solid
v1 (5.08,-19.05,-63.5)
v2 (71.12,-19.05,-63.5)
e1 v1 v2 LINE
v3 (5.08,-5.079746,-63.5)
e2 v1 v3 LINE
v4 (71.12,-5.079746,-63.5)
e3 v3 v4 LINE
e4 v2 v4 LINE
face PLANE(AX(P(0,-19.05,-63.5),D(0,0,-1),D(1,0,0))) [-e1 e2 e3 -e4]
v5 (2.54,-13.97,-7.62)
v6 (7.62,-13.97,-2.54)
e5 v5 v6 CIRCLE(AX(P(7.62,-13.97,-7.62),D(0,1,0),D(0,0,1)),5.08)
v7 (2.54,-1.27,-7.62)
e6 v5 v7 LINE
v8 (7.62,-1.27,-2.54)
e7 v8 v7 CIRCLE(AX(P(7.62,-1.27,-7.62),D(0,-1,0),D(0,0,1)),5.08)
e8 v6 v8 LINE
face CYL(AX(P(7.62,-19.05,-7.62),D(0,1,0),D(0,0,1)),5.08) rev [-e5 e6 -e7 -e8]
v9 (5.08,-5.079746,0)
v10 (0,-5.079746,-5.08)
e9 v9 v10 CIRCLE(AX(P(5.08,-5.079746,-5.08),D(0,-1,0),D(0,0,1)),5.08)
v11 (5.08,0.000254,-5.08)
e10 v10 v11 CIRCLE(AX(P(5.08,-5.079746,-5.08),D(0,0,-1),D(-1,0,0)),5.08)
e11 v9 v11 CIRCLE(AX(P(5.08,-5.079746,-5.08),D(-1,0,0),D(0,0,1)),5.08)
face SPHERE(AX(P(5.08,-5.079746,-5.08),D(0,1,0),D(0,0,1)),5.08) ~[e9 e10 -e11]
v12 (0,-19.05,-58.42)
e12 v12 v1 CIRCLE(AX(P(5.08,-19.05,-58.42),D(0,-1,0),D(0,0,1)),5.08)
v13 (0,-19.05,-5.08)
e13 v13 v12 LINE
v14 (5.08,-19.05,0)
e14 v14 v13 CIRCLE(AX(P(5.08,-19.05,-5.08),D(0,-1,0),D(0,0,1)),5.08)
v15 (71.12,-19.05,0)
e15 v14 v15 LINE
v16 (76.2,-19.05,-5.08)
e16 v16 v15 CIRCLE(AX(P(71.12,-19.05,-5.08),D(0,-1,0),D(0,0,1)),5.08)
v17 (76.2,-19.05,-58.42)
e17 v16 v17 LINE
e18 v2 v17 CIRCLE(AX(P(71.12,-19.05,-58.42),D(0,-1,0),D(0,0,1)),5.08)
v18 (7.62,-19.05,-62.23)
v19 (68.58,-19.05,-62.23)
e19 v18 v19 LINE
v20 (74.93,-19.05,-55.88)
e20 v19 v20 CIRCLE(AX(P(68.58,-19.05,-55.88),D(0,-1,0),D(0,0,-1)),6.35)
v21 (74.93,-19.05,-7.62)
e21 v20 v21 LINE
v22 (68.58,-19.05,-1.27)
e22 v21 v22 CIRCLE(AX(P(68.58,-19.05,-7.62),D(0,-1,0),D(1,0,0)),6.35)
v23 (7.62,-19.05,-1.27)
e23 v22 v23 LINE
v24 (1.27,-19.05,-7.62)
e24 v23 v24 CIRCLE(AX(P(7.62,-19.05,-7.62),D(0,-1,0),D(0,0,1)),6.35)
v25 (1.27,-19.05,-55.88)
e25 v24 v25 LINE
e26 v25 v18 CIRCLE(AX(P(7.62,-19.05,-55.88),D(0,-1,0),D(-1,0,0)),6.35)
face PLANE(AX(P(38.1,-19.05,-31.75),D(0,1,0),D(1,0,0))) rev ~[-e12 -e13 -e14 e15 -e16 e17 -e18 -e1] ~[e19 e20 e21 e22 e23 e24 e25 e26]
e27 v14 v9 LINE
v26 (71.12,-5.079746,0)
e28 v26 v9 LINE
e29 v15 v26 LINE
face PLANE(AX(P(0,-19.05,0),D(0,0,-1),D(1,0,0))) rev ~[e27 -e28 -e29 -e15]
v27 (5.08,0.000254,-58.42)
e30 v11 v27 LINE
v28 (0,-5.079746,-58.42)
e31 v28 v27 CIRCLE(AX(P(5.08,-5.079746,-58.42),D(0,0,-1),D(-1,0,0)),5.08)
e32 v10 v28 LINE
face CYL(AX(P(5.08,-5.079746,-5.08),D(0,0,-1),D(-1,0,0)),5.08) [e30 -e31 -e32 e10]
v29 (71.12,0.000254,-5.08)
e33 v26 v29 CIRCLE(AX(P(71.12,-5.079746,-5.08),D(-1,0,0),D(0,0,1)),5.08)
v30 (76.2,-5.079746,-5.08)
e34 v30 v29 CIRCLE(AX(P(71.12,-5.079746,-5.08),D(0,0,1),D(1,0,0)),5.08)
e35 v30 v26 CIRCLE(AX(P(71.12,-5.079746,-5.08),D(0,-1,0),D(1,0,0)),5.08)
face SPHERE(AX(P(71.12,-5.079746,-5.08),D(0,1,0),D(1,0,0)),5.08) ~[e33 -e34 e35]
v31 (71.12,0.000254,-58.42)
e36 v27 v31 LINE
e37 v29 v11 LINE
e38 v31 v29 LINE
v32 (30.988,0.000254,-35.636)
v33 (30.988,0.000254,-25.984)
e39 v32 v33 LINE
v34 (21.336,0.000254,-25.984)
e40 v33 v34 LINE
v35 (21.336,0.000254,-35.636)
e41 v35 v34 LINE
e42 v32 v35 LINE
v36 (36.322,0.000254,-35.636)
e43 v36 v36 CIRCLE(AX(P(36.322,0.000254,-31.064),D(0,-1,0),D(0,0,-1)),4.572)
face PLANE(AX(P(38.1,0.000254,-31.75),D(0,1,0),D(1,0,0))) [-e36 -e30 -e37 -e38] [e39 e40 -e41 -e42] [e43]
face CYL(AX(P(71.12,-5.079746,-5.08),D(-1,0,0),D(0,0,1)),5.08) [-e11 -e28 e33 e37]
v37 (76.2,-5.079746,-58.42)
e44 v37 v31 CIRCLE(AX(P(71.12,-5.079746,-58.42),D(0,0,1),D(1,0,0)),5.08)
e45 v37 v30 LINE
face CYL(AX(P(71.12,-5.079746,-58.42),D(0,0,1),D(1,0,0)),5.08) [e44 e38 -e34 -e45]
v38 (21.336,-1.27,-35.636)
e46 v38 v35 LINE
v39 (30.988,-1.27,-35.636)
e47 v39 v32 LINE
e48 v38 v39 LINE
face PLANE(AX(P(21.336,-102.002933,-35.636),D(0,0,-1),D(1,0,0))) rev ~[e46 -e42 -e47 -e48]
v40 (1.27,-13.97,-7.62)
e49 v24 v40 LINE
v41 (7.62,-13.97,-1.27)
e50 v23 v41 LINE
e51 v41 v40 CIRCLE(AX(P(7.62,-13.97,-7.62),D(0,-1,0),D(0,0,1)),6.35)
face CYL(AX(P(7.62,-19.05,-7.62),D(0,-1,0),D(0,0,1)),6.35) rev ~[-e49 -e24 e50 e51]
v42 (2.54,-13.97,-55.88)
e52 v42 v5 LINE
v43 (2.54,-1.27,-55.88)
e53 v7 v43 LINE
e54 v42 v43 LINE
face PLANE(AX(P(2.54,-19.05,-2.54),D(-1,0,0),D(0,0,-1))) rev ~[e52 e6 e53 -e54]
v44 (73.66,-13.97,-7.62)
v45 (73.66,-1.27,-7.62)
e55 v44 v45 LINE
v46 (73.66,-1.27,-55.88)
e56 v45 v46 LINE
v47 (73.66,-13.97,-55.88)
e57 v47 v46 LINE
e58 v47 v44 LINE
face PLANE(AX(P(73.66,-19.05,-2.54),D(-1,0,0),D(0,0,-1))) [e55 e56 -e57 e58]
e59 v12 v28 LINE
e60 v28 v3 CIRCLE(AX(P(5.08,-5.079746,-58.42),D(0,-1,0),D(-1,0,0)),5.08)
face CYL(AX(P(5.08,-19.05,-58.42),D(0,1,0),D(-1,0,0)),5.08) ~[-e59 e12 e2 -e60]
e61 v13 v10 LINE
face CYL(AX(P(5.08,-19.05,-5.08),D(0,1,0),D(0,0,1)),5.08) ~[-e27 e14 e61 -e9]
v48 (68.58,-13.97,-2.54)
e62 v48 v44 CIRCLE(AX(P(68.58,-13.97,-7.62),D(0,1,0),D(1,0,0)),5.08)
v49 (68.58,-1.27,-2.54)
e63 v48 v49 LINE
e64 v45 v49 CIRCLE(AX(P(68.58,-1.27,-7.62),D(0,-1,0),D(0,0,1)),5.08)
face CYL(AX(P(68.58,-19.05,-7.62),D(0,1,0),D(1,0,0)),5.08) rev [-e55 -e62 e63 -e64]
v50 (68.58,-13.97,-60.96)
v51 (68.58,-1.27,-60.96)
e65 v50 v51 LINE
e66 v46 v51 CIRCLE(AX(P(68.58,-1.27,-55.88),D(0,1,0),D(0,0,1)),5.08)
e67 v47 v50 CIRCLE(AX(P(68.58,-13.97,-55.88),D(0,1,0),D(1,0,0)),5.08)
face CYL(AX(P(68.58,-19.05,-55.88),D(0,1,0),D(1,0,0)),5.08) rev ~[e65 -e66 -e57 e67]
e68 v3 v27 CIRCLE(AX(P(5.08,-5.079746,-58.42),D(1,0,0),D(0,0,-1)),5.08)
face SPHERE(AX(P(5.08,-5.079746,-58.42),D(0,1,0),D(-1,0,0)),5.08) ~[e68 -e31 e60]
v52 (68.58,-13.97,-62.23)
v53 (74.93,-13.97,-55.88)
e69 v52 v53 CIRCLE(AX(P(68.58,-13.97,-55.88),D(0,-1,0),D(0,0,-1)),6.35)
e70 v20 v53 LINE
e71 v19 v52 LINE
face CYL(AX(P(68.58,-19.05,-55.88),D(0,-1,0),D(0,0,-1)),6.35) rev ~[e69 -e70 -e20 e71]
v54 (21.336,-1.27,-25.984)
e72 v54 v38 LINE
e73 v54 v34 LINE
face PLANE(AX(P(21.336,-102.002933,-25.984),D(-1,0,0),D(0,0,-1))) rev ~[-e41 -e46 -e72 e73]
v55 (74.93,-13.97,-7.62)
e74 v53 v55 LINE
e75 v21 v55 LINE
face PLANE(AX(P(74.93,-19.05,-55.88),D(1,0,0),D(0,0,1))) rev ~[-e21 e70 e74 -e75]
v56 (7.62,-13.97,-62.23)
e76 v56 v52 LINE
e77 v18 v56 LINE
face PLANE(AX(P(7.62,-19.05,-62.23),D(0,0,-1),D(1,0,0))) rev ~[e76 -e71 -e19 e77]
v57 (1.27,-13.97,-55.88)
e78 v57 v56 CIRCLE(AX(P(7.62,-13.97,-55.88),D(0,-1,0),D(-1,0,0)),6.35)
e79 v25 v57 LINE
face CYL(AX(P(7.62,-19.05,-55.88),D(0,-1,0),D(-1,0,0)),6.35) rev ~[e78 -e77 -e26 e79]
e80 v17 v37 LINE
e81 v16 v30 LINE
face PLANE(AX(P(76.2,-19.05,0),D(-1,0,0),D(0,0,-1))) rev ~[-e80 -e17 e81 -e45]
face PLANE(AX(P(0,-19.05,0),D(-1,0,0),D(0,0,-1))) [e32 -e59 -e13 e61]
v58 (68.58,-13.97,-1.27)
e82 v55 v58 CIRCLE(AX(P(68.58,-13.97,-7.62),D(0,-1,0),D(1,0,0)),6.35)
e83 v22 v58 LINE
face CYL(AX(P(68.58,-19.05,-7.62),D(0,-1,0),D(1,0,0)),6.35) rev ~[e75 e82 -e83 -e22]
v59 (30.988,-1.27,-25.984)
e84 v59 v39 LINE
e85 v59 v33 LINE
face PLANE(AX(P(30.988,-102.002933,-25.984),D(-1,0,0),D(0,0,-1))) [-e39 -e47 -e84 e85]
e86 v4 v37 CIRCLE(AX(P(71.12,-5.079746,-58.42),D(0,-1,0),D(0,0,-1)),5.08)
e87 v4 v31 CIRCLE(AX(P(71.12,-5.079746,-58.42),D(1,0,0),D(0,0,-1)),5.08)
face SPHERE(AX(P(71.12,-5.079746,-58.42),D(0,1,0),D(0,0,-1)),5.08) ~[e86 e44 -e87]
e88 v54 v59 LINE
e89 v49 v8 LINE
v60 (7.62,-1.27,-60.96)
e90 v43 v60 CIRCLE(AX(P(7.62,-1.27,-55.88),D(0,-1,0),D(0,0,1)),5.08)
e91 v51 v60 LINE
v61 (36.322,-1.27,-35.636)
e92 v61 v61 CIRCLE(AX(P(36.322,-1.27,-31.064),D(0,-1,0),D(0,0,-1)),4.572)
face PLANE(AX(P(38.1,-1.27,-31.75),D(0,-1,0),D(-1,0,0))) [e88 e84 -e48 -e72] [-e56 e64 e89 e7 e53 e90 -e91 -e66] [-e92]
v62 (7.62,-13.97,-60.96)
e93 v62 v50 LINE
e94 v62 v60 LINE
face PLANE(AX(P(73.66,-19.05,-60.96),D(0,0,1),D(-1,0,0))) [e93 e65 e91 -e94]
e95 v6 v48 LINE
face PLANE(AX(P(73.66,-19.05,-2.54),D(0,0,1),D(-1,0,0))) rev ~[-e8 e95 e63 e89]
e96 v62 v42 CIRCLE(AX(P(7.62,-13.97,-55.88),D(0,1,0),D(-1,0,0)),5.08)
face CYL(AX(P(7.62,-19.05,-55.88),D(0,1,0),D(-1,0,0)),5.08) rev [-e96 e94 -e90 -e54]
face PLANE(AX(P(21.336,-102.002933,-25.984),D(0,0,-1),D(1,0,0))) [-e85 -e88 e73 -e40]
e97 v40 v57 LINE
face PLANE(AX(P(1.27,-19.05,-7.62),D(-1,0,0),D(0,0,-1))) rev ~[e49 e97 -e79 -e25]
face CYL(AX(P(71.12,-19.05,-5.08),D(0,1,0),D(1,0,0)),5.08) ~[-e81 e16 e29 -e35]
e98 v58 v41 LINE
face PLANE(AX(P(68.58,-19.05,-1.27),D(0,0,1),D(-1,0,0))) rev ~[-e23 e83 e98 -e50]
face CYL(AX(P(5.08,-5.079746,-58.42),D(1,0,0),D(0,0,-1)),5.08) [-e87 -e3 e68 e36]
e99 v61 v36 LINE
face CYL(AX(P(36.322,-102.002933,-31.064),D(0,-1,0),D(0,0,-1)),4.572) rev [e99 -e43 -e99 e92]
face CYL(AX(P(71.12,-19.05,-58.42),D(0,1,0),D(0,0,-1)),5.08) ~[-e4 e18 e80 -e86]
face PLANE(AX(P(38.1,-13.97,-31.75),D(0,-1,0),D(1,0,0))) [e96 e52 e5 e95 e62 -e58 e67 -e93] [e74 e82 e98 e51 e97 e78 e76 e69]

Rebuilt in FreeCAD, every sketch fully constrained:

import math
import FreeCAD as App
import Part
import Sketcher

V = App.Vector
Q = App.Units.Quantity


def edges_at(feature, points):
    """Names of the edges that pass closest to the given points."""
    edges = feature.Shape.Edges
    near = lambda p: min(range(len(edges)), key=lambda i: edges[i].distToShape(Part.Vertex(*p))[0])
    return sorted({f"Edge{near(p) + 1}" for p in points})

doc = App.newDocument("Part")
body = doc.addObject("PartDesign::Body", "Body")

# Sketch on XZ plane
sketch1 = body.newObject("Sketcher::SketchObject", "Sketch")
sketch1.AttachmentSupport = (doc.getObject("XZ_Plane"), [""])
sketch1.MapMode = "FlatFace"
sketch1.addGeometry([
    Part.LineSegment(V(0, -64, 0), V(0, 0, 0)),
    Part.LineSegment(V(0, 0, 0), V(76, 0, 0)),
    Part.LineSegment(V(76, 0, 0), V(76, -64, 0)),
    Part.LineSegment(V(76, -64, 0), V(0, -64, 0)),
], False)
sketch1.addConstraint([
    Sketcher.Constraint("Coincident", 0, 2, 1, 1),
    Sketcher.Constraint("Coincident", 1, 2, 2, 1),
    Sketcher.Constraint("Coincident", 2, 2, 3, 1),
    Sketcher.Constraint("Coincident", 3, 2, 0, 1),
    Sketcher.Constraint("Vertical", 0),
    Sketcher.Constraint("Horizontal", 1),
    Sketcher.Constraint("Vertical", 2),
    Sketcher.Constraint("Horizontal", 3),
    Sketcher.Constraint("Coincident", 0, 2, -1, 1),
    Sketcher.Constraint("DistanceX", 1, 1, 1, 2, Q("3 in")),
    Sketcher.Constraint("DistanceY", 0, 1, 0, 2, Q("2.5 in")),
])
pad1 = body.newObject("PartDesign::Pad", "Pad")
pad1.Profile = sketch1
pad1.Type = "TwoLengths"
pad1.Length = 0.000254
pad1.Length2 = Q("0.75 in")
pad1.Reversed = True

# Sketch on XZ plane
sketch2 = body.newObject("Sketcher::SketchObject", "Sketch001")
sketch2.AttachmentSupport = (doc.getObject("XZ_Plane"), [""])
sketch2.MapMode = "FlatFace"
sketch2.AttachmentOffset = App.Placement(V(0, 0, 0.75 * 25.4), App.Rotation())
sketch2.addGeometry([
    Part.LineSegment(V(74, -61, 0), V(74, -3, 0)),
    Part.LineSegment(V(74, -3, 0), V(3, -3, 0)),
    Part.LineSegment(V(3, -3, 0), V(3, -61, 0)),
    Part.LineSegment(V(3, -61, 0), V(74, -61, 0)),
], False)
sketch2.addConstraint([
    Sketcher.Constraint("Coincident", 0, 2, 1, 1),
    Sketcher.Constraint("Coincident", 1, 2, 2, 1),
    Sketcher.Constraint("Coincident", 2, 2, 3, 1),
    Sketcher.Constraint("Coincident", 3, 2, 0, 1),
    Sketcher.Constraint("Vertical", 0),
    Sketcher.Constraint("Horizontal", 1),
    Sketcher.Constraint("Vertical", 2),
    Sketcher.Constraint("Horizontal", 3),
    Sketcher.Constraint("DistanceX", 1, 2, 1, 1, Q("2.8 in")),
    Sketcher.Constraint("DistanceY", 0, 1, 0, 2, Q("2.3 in")),
    Sketcher.Constraint("DistanceX", -1, 1, 0, 2, Q("2.9 in")),
    Sketcher.Constraint("DistanceY", 0, 2, -1, 1, Q("0.1 in")),
])
pocket1 = body.newObject("PartDesign::Pocket", "Pocket")
pocket1.Profile = sketch2
pocket1.Length = Q("0.7 in")

# Sketch on XZ plane
sketch3 = body.newObject("Sketcher::SketchObject", "Sketch002")
sketch3.AttachmentSupport = (doc.getObject("XZ_Plane"), [""])
sketch3.MapMode = "FlatFace"
sketch3.addGeometry([
    Part.Circle(V(36.3, -31.1, 0), V(0, 0, 1), 4.6),  # 0
    Part.LineSegment(V(21.3, -35.6, 0), V(21.3, -26, 0)),  # 1
    Part.LineSegment(V(21.3, -26, 0), V(31, -26, 0)),  # 2
    Part.LineSegment(V(31, -26, 0), V(31, -35.6, 0)),  # 3
    Part.LineSegment(V(31, -35.6, 0), V(21.3, -35.6, 0)),  # 4
], False)
sketch3.addConstraint([
    Sketcher.Constraint("Coincident", 1, 2, 2, 1),
    Sketcher.Constraint("Coincident", 2, 2, 3, 1),
    Sketcher.Constraint("Coincident", 3, 2, 4, 1),
    Sketcher.Constraint("Coincident", 4, 2, 1, 1),
    Sketcher.Constraint("Vertical", 1),
    Sketcher.Constraint("Horizontal", 2),
    Sketcher.Constraint("Vertical", 3),
    Sketcher.Constraint("Horizontal", 4),
    Sketcher.Constraint("Equal", 4, 1),
    Sketcher.Constraint("Diameter", 0, Q("0.36 in")),
    Sketcher.Constraint("DistanceX", 2, 1, 2, 2, Q("0.38 in")),
    Sketcher.Constraint("DistanceY", 0, 3, 1, 2, Q("0.2 in")),
    Sketcher.Constraint("DistanceX", -1, 1, 0, 3, Q("1.43 in")),
    Sketcher.Constraint("DistanceX", -1, 1, 1, 2, Q("0.84 in")),
    Sketcher.Constraint("DistanceY", 0, 3, -1, 1, Q("31.064 mm")),
])
pocket2 = body.newObject("PartDesign::Pocket", "Pocket001")
pocket2.Profile = sketch3
pocket2.Type = "ThroughAll"
pocket2.Midplane = True
doc.recompute()

fillet = body.newObject("PartDesign::Fillet", "Fillet")
fillet.Base = (pocket2, edges_at(pocket2, [(76.2, -9.525, -63.5)]))
fillet.Radius = Q("0.2 in")
doc.recompute()

fillet2 = body.newObject("PartDesign::Fillet", "Fillet001")
fillet2.Base = (fillet, edges_at(fillet, [(73.66, -10.16, -60.96)]))
fillet2.Radius = Q("0.2 in")
doc.recompute()

fillet3 = body.newObject("PartDesign::Fillet", "Fillet002")
fillet3.Base = (fillet2, edges_at(fillet2, [(73.66, -10.16, -2.54), (76.2, -9.525, 0)]))
fillet3.Radius = Q("0.2 in")
doc.recompute()

fillet4 = body.newObject("PartDesign::Fillet", "Fillet003")
fillet4.Base = (fillet3, edges_at(fillet3, [(2.54, -10.16, -2.54), (0, -9.525, 0)]))
fillet4.Radius = Q("0.2 in")
doc.recompute()

fillet5 = body.newObject("PartDesign::Fillet", "Fillet004")
fillet5.Base = (fillet4, edges_at(fillet4, [(2.54, -10.16, -60.96), (0, -9.525, -63.5)]))
fillet5.Radius = Q("0.2 in")
doc.recompute()

fillet6 = body.newObject("PartDesign::Fillet", "Fillet005")
fillet6.Base = (fillet5, edges_at(fillet5, [
    (38.1, 0, -63.5),
    (1.488, 0, -62.012),
    (74.712, 0, -62.012),
    (76.2, 0, -31.75),
    (74.712, 0, -1.488),
    (0, 0, -31.75),
    (38.1, 0, 0),
    (1.488, 0, -1.488),
]))
fillet6.Radius = Q("0.2 in")

# Sketch on XZ plane
sketch4 = body.newObject("Sketcher::SketchObject", "Sketch003")
sketch4.AttachmentSupport = (doc.getObject("XZ_Plane"), [""])
sketch4.MapMode = "FlatFace"
sketch4.AttachmentOffset = App.Placement(V(0, 0, 0.75 * 25.4), App.Rotation())
sketch4.addGeometry([
    Part.LineSegment(V(1, -8, 0), V(1, -56, 0)),  # 0
    Part.ArcOfCircle(Part.Circle(V(8, -56, 0), V(0, 0, 1), 6), math.radians(180), math.radians(270)),  # 1
    Part.LineSegment(V(8, -62, 0), V(69, -62, 0)),  # 2
    Part.ArcOfCircle(Part.Circle(V(69, -56, 0), V(0, 0, 1), 6), math.radians(-90), math.radians(0)),  # 3
    Part.LineSegment(V(75, -56, 0), V(75, -8, 0)),  # 4
    Part.ArcOfCircle(Part.Circle(V(69, -8, 0), V(0, 0, 1), 6), math.radians(0), math.radians(90)),  # 5
    Part.LineSegment(V(69, -1, 0), V(8, -1, 0)),  # 6
    Part.ArcOfCircle(Part.Circle(V(8, -8, 0), V(0, 0, 1), 6), math.radians(90), math.radians(180)),  # 7
], False)
sketch4.addConstraint([
    Sketcher.Constraint("Tangent", 0, 2, 1, 1),
    Sketcher.Constraint("Tangent", 1, 2, 2, 1),
    Sketcher.Constraint("Tangent", 2, 2, 3, 1),
    Sketcher.Constraint("Tangent", 3, 2, 4, 1),
    Sketcher.Constraint("Tangent", 4, 2, 5, 1),
    Sketcher.Constraint("Tangent", 5, 2, 6, 1),
    Sketcher.Constraint("Tangent", 6, 2, 7, 1),
    Sketcher.Constraint("Tangent", 7, 2, 0, 1),
    Sketcher.Constraint("Vertical", 0),
    Sketcher.Constraint("Horizontal", 2),
    Sketcher.Constraint("Vertical", 4),
    Sketcher.Constraint("Horizontal", 6),
    Sketcher.Constraint("Equal", 1, 3),
    Sketcher.Constraint("Equal", 3, 5),
    Sketcher.Constraint("Equal", 5, 7),
    Sketcher.Constraint("Radius", 1, Q("0.25 in")),
    Sketcher.Constraint("DistanceX", 2, 1, 2, 2, Q("2.4 in")),
    Sketcher.Constraint("DistanceY", 0, 2, 0, 1, Q("1.9 in")),
    Sketcher.Constraint("DistanceX", -1, 1, 1, 3, Q("0.3 in")),
    Sketcher.Constraint("DistanceY", 1, 3, -1, 1, Q("2.2 in")),
])
pocket3 = body.newObject("PartDesign::Pocket", "Pocket002")
pocket3.Profile = sketch4
pocket3.Length = Q("0.2 in")

doc.recompute()
